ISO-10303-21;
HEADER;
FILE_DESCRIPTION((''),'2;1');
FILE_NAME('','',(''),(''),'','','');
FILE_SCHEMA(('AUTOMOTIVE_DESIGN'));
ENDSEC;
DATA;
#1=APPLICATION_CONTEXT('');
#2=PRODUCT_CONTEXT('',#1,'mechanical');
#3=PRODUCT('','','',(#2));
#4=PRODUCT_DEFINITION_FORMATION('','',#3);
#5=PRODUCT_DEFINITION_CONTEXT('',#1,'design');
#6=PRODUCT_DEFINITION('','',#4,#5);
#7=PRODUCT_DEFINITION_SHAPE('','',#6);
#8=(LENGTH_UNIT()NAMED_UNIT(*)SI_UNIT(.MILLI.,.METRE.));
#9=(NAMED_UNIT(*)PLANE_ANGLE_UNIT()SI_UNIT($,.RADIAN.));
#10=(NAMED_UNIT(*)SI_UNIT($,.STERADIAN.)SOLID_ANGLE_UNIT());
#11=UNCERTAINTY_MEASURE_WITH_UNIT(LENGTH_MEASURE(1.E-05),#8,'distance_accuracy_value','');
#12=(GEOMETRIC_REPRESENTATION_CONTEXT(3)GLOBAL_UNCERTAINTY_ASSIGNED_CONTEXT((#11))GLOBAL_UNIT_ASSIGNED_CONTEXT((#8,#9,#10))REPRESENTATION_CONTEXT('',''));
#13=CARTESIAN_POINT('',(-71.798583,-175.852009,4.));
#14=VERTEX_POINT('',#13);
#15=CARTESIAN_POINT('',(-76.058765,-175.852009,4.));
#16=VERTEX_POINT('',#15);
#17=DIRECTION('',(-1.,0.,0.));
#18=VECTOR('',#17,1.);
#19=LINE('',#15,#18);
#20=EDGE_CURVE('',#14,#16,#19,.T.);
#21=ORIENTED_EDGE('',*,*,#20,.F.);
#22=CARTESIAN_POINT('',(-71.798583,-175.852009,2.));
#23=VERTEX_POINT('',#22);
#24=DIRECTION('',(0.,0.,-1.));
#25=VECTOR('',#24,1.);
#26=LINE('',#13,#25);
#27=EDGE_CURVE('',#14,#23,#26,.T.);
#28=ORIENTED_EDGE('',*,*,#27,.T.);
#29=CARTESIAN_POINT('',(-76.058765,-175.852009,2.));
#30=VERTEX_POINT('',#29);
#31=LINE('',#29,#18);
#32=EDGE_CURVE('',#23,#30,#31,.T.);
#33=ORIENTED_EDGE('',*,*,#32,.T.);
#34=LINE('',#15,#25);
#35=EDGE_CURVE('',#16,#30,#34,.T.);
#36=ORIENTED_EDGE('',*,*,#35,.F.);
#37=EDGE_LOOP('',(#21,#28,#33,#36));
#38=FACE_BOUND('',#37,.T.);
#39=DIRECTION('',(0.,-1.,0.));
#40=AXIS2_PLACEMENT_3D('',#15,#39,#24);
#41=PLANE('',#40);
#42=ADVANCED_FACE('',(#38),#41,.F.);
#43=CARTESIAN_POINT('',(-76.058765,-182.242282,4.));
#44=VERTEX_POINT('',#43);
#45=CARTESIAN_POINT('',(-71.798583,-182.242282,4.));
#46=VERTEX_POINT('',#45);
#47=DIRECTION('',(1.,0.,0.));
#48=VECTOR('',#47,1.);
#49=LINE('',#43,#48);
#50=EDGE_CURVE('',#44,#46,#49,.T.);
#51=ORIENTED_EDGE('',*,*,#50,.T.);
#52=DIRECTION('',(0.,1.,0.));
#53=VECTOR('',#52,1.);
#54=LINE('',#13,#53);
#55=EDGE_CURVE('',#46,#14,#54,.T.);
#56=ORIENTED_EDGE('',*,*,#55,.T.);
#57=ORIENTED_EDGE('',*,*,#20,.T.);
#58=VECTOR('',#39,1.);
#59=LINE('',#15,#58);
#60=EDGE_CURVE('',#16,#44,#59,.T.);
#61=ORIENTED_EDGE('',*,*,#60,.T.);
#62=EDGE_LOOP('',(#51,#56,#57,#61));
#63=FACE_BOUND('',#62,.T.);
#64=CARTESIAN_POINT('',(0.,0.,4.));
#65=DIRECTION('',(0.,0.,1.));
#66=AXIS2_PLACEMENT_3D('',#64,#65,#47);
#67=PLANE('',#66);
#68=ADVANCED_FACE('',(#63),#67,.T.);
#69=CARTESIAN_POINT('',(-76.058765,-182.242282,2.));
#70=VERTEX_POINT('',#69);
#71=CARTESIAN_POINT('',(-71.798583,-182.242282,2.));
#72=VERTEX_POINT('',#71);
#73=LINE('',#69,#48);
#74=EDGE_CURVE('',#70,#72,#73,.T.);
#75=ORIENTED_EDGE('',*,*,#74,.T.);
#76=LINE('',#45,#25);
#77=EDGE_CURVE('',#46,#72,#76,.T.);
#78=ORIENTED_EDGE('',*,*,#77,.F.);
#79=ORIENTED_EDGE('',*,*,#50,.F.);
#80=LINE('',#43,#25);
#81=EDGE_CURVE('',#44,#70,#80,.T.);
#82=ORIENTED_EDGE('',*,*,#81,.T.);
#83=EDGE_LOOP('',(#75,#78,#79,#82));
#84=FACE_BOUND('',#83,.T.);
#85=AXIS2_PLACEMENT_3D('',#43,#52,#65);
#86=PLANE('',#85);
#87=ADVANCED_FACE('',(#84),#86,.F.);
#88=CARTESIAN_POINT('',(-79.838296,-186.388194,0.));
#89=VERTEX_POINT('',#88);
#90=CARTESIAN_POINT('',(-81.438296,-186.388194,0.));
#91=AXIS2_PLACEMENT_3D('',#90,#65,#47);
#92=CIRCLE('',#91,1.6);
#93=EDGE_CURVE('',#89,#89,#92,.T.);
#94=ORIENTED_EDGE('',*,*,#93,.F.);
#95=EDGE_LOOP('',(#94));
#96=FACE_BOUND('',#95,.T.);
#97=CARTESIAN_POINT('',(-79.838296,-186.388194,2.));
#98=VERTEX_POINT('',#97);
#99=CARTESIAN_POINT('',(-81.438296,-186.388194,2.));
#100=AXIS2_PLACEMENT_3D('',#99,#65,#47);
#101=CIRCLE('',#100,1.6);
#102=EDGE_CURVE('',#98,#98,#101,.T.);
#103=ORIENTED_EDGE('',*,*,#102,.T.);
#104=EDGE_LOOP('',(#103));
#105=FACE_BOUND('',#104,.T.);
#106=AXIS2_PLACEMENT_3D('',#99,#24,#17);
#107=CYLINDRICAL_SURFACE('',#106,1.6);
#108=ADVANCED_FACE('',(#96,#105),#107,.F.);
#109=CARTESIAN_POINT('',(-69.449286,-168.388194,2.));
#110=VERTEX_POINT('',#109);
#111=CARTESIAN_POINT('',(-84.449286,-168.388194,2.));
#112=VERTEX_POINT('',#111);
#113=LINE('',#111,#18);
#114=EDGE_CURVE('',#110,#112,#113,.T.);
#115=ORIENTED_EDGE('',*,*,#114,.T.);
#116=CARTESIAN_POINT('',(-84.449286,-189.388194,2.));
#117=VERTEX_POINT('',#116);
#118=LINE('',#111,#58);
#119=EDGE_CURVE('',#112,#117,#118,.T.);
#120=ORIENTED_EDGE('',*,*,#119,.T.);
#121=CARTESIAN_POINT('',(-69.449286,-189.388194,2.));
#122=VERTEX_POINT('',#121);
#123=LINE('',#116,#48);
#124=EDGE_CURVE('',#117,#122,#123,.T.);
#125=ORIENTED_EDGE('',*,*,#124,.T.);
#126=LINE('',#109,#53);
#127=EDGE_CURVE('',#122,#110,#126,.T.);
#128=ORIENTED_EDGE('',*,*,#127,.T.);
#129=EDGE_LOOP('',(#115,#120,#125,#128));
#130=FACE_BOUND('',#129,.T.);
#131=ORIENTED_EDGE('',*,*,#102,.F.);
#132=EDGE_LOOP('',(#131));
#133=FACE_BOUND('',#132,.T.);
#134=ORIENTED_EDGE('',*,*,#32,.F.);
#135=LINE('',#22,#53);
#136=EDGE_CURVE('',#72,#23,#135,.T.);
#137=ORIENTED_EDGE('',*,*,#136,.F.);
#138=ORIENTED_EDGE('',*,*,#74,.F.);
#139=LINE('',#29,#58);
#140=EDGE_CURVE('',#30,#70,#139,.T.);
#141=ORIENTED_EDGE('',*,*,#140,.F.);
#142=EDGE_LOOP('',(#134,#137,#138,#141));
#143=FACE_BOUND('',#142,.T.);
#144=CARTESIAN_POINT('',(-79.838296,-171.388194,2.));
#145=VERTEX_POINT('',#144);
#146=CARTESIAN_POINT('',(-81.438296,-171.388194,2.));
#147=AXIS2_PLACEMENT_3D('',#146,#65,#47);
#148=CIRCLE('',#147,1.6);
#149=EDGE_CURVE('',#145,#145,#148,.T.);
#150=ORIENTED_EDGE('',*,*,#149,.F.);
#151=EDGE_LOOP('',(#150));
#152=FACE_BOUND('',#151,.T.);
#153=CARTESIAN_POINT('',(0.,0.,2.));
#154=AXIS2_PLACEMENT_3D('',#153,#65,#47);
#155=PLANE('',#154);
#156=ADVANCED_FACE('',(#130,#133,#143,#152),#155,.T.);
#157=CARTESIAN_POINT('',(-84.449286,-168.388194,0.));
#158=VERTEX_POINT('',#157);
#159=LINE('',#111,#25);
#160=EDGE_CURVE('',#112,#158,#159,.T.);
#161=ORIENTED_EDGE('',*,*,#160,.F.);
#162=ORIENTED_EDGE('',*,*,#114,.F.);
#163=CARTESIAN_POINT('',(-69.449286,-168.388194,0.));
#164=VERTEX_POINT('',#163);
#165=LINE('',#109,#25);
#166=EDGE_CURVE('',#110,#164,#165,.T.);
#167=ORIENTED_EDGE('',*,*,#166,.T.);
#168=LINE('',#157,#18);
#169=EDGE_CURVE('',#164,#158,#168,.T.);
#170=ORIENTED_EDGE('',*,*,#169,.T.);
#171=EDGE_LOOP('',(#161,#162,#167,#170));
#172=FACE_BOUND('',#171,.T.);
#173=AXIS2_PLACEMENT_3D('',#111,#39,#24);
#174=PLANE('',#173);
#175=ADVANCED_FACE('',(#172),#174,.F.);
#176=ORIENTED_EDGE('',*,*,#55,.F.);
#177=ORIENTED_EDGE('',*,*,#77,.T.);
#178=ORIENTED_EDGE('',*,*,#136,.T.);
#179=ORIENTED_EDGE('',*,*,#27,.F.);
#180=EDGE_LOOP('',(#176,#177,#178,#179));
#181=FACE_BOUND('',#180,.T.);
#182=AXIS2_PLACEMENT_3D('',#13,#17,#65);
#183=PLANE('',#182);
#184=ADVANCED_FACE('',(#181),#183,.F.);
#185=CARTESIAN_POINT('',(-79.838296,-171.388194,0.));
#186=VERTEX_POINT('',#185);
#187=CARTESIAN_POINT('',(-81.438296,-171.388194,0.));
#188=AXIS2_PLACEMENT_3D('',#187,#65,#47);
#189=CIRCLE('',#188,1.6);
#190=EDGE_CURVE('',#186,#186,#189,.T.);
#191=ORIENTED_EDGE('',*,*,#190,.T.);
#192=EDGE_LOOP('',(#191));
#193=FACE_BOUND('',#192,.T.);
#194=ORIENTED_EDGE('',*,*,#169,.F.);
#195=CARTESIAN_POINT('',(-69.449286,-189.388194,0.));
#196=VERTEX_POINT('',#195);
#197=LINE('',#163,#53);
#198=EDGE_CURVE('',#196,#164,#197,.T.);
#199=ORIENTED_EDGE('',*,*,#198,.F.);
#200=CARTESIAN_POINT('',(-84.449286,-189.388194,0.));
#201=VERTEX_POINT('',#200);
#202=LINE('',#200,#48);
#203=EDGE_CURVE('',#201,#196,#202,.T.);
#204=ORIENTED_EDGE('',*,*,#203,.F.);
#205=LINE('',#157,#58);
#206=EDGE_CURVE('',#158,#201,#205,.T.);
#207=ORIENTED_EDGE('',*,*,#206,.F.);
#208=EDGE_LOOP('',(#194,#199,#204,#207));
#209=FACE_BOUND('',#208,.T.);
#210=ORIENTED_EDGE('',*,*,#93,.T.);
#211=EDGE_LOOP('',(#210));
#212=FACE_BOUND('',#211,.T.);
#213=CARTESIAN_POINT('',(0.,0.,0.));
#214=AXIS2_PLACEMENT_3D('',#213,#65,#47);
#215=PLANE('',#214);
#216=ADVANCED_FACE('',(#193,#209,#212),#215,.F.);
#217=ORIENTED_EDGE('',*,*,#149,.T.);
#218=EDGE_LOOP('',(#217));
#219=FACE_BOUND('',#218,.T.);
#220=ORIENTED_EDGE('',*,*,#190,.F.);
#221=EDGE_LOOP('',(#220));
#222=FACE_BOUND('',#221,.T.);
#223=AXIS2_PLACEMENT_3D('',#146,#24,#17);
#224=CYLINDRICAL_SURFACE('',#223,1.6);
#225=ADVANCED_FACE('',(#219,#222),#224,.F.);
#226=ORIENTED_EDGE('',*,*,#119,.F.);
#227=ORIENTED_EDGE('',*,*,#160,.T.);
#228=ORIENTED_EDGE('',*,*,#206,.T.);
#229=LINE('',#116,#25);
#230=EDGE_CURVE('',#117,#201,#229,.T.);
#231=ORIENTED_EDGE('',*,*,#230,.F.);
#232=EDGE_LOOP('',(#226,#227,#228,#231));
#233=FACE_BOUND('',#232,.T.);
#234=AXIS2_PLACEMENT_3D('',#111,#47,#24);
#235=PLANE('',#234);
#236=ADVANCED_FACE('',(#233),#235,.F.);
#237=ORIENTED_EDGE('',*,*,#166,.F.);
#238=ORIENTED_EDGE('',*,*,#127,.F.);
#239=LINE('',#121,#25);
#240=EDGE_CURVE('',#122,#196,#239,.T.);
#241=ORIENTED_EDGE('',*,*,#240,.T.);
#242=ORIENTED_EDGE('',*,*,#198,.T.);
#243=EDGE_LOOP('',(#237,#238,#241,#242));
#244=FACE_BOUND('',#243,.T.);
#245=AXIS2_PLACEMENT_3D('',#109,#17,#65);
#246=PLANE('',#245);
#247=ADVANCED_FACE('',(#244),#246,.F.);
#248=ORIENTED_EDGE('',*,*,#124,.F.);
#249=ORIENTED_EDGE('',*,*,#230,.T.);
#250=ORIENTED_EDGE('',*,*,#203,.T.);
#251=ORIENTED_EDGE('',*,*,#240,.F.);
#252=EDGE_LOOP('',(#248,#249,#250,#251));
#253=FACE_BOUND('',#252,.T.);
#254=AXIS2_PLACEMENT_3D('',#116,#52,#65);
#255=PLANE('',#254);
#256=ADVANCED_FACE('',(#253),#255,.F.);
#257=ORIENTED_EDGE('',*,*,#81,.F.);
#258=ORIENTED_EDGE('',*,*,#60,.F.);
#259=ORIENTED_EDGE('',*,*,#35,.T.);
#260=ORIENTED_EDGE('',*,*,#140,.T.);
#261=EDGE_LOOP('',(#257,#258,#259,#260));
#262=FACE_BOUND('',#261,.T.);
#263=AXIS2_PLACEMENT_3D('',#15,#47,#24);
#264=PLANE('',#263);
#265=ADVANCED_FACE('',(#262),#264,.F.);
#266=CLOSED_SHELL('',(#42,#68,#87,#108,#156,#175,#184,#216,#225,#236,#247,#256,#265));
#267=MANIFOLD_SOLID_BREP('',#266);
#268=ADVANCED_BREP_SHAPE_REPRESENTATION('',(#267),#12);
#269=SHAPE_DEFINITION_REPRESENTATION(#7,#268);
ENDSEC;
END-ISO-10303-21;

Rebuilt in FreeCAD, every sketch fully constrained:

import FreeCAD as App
import Part
import Sketcher

V = App.Vector


def add_polygon(sketch, points):
    """Adds a closed chain of lines whose ends are joined by coincident constraints."""
    first, n = sketch.GeometryCount, len(points)
    for a, b in zip(points, points[1:] + points[:1]):
        sketch.addGeometry(Part.LineSegment(App.Vector(*a, 0), App.Vector(*b, 0)), False)
    for i in range(n):
        sketch.addConstraint(Sketcher.Constraint("Coincident", first + i, 2, first + (i + 1) % n, 1))

doc = App.newDocument("Part")
body = doc.addObject("PartDesign::Body", "Body")

# Sketch on XY plane
sketch1 = body.newObject("Sketcher::SketchObject", "Sketch")
sketch1.AttachmentSupport = (doc.getObject("XY_Plane"), [""])
sketch1.MapMode = "FlatFace"
add_polygon(sketch1, [(-84.4, -168.4), (-84.4, -189.4), (-69.4, -189.4), (-69.4, -168.4)])  # lines 0-3
sketch1.addGeometry(Part.Circle(V(-81.4, -186.4, 0), V(0, 0, 1), 1.6), False)  # 4
sketch1.addGeometry(Part.Circle(V(-81.4, -171.4, 0), V(0, 0, 1), 1.6), False)  # 5
sketch1.addConstraint(Sketcher.Constraint("Vertical", 0))
sketch1.addConstraint(Sketcher.Constraint("Horizontal", 1))
sketch1.addConstraint(Sketcher.Constraint("Vertical", 2))
sketch1.addConstraint(Sketcher.Constraint("Horizontal", 3))
sketch1.addConstraint(Sketcher.Constraint("Equal", 4, 5))
sketch1.addConstraint(Sketcher.Constraint("Vertical", 4, 3, 5, 3))
sketch1.addConstraint(Sketcher.Constraint("Diameter", 4, 3.2))
sketch1.addConstraint(Sketcher.Constraint("DistanceX", 1, 1, 1, 2, 15.0))
sketch1.addConstraint(Sketcher.Constraint("DistanceY", 0, 2, 0, 1, 21.0))
sketch1.addConstraint(Sketcher.Constraint("DistanceY", 4, 3, 5, 3, 15.0))
sketch1.addConstraint(Sketcher.Constraint("DistanceY", 0, 2, 4, 3, 3.0))
sketch1.addConstraint(Sketcher.Constraint("DistanceX", 0, 2, 4, 3, 3.01099))
sketch1.addConstraint(Sketcher.Constraint("DistanceX", 4, 3, -1, 1, 81.438296))
sketch1.addConstraint(Sketcher.Constraint("DistanceY", 4, 3, -1, 1, 186.388194))
pad1 = body.newObject("PartDesign::Pad", "Pad")
pad1.Profile = sketch1
pad1.Length = 2

# Sketch on XY plane
sketch2 = body.newObject("Sketcher::SketchObject", "Sketch001")
sketch2.AttachmentSupport = (doc.getObject("XY_Plane"), [""])
sketch2.MapMode = "FlatFace"
sketch2.AttachmentOffset = App.Placement(V(0, 0, 2), App.Rotation())
add_polygon(sketch2, [(-76.1, -175.9), (-76.1, -182.2), (-71.8, -182.2), (-71.8, -175.9)])  # lines 0-3
sketch2.addConstraint(Sketcher.Constraint("Vertical", 0))
sketch2.addConstraint(Sketcher.Constraint("Horizontal", 1))
sketch2.addConstraint(Sketcher.Constraint("Vertical", 2))
sketch2.addConstraint(Sketcher.Constraint("Horizontal", 3))
sketch2.addConstraint(Sketcher.Constraint("DistanceX", 1, 1, 1, 2, 4.260182))
sketch2.addConstraint(Sketcher.Constraint("DistanceY", 0, 2, 0, 1, 6.390273))
sketch2.addConstraint(Sketcher.Constraint("DistanceY", 2, 2, -1, 1, 175.852009))
sketch2.addConstraint(Sketcher.Constraint("DistanceX", 0, 2, -1, 1, 76.058765))
pad2 = body.newObject("PartDesign::Pad", "Pad001")
pad2.Profile = sketch2
pad2.Length = 2

doc.recompute()
